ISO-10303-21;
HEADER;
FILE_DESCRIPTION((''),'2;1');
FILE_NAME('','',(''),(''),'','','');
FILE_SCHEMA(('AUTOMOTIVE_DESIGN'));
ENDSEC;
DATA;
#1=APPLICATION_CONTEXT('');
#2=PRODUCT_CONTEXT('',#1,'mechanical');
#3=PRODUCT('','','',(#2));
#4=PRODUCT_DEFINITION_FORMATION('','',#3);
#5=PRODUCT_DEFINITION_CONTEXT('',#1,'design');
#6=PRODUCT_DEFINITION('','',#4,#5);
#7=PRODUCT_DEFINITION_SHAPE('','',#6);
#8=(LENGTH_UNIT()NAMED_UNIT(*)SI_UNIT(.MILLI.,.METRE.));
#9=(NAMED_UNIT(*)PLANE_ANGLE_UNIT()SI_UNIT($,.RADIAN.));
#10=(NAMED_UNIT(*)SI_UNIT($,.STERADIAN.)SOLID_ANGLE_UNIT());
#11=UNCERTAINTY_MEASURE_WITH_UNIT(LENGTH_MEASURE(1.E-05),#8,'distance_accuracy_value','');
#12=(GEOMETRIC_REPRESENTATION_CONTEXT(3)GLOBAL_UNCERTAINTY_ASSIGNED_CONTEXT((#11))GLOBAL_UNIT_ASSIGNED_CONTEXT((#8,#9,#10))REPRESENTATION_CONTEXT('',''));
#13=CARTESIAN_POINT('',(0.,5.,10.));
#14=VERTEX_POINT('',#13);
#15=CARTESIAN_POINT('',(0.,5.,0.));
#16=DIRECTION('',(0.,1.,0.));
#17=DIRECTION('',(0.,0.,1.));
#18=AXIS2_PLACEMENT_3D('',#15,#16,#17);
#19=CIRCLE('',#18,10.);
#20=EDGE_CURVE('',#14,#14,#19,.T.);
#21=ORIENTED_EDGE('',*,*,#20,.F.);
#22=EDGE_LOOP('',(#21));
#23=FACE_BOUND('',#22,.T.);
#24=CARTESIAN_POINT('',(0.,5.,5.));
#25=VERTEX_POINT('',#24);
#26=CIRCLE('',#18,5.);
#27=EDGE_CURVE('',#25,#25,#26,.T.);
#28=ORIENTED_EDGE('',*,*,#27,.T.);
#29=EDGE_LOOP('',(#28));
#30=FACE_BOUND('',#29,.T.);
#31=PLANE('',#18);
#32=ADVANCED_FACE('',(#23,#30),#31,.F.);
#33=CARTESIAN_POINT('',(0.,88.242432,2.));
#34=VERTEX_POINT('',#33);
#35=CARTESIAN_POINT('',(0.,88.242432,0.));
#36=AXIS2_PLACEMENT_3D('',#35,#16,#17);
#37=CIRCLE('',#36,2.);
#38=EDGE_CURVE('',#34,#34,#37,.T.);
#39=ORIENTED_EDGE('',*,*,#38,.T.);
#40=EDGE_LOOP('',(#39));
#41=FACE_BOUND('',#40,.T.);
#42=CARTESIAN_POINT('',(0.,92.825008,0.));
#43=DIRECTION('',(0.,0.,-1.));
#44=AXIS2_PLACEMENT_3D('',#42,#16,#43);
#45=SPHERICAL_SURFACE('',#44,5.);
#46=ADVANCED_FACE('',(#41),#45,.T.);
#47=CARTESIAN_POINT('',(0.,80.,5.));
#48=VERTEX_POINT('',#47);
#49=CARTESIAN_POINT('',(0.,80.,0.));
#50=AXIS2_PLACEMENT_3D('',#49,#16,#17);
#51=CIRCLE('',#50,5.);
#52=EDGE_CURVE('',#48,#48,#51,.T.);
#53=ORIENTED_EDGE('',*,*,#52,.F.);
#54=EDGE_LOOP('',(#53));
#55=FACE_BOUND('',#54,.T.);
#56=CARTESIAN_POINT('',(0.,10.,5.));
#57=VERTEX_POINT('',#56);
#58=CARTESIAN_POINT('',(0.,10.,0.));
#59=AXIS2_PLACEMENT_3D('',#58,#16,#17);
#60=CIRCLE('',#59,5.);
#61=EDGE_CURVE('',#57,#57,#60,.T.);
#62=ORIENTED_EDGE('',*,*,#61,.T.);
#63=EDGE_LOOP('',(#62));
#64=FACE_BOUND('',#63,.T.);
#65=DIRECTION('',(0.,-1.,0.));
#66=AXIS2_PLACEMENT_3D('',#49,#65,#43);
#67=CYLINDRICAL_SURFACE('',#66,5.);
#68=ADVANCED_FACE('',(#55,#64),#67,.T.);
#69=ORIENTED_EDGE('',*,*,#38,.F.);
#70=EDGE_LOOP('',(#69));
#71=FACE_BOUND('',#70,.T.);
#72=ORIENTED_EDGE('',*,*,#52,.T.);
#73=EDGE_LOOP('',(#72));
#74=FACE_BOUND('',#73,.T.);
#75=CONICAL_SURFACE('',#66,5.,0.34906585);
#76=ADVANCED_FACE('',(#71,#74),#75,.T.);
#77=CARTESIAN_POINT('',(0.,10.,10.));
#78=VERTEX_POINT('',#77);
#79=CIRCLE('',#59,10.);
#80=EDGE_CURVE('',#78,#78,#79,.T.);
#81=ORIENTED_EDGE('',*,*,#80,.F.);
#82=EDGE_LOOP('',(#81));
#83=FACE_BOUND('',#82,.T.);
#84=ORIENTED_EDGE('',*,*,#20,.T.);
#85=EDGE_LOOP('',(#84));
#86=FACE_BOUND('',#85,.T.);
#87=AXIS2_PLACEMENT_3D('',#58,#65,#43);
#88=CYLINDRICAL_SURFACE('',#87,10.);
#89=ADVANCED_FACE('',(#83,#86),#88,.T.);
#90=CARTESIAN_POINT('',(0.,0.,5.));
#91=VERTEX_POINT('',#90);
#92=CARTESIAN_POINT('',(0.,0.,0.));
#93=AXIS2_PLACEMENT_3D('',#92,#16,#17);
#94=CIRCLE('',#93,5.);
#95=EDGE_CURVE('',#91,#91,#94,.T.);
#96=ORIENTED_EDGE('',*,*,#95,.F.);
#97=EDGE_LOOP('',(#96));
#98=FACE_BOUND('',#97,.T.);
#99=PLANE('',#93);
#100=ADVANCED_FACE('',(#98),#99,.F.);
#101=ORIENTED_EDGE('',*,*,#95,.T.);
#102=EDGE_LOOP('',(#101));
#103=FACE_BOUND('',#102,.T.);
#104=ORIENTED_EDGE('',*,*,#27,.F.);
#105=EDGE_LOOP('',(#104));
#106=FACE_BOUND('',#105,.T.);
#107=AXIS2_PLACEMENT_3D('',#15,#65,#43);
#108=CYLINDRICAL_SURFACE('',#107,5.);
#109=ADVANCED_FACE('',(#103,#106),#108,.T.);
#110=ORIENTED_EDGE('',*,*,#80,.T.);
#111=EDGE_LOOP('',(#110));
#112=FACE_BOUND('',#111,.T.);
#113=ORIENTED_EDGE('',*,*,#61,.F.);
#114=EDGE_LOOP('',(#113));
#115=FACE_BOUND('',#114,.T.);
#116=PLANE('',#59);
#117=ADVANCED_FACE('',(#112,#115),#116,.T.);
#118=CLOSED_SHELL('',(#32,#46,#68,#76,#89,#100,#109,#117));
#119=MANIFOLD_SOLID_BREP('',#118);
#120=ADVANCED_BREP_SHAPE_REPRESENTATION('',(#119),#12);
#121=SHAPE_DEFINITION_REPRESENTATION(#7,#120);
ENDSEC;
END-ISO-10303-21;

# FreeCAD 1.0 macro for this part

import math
import FreeCAD as App
import Part
import Sketcher
from FreeCAD import Vector
Q = App.Units.Quantity

doc = App.newDocument("Part")
body = doc.addObject("PartDesign::Body", "Body")

# Sketch on XZ plane
sketch1 = body.newObject("Sketcher::SketchObject", "Sketch")
sketch1.AttachmentSupport = (doc.getObject("XZ_Plane"), [""])
sketch1.MapMode = "FlatFace"
sketch1.addGeometry(Part.Circle(Vector(0, 0, 0), Vector(0, 0, 1), 5), False)
sketch1.addConstraint([
    Sketcher.Constraint("Coincident", 0, 3, -1, 1),
    Sketcher.Constraint("Diameter", 0, Q("10 mm")),
])
pad1 = body.newObject("PartDesign::Pad", "Pad")
pad1.Profile = sketch1
pad1.Length = 5
pad1.Reversed = True

# Sketch on XZ plane
sketch2 = body.newObject("Sketcher::SketchObject", "Sketch001")
sketch2.AttachmentSupport = (doc.getObject("XZ_Plane"), [""])
sketch2.MapMode = "FlatFace"
sketch2.AttachmentOffset = App.Placement(Vector(0, 0, -5), App.Rotation())
sketch2.addGeometry(Part.Circle(Vector(0, 0, 0), Vector(0, 0, 1), 10), False)
sketch2.addConstraint([
    Sketcher.Constraint("Coincident", 0, 3, -1, 1),
    Sketcher.Constraint("Diameter", 0, Q("20 mm")),
])
pad2 = body.newObject("PartDesign::Pad", "Pad001")
pad2.Profile = sketch2
pad2.Length = 5
pad2.Reversed = True

# Sketch on XZ plane
sketch3 = body.newObject("Sketcher::SketchObject", "Sketch002")
sketch3.AttachmentSupport = (doc.getObject("XZ_Plane"), [""])
sketch3.MapMode = "FlatFace"
sketch3.AttachmentOffset = App.Placement(Vector(0, 0, -10), App.Rotation())
sketch3.addGeometry(Part.Circle(Vector(0, 0, 0), Vector(0, 0, 1), 5), False)
sketch3.addConstraint([
    Sketcher.Constraint("Coincident", 0, 3, -1, 1),
    Sketcher.Constraint("Diameter", 0, Q("10 mm")),
])
pad3 = body.newObject("PartDesign::Pad", "Pad002")
pad3.Profile = sketch3
pad3.Length = 70
pad3.Reversed = True

# Sketch on YZ plane
sketch4 = body.newObject("Sketcher::SketchObject", "Sketch003")
sketch4.AttachmentSupport = (doc.getObject("YZ_Plane"), [""])
sketch4.MapMode = "FlatFace"
sketch4.addGeometry([
    Part.LineSegment(Vector(80, -5, 0), Vector(88, -2, 0)),
    Part.ArcOfCircle(Part.Circle(Vector(93, 0, 0), Vector(0, 0, 1), 5), math.radians(-156), math.radians(0)),
    Part.LineSegment(Vector(98, 0, 0), Vector(80, 0, 0)),
    Part.LineSegment(Vector(80, 0, 0), Vector(80, -5, 0)),
], False)
sketch4.addConstraint([
    Sketcher.Constraint("Coincident", 0, 2, 1, 1),
    Sketcher.Constraint("Coincident", 1, 2, 2, 1),
    Sketcher.Constraint("Coincident", 2, 2, 3, 1),
    Sketcher.Constraint("Coincident", 3, 2, 0, 1),
    Sketcher.Constraint("Horizontal", 2),
    Sketcher.Constraint("Vertical", 3),
    Sketcher.Constraint("PointOnObject", 1, 3, -1),
    Sketcher.Constraint("PointOnObject", 1, 2, -1),
    Sketcher.Constraint("Radius", 1, Q("5 mm")),
    Sketcher.Constraint("DistanceY", 3, 2, 3, 1, Q("5 mm")),
    Sketcher.Constraint("Angle", 0, Q("20 deg")),
    Sketcher.Constraint("DistanceY", 0, 2, -1, 1, Q("2 mm")),
    Sketcher.Constraint("DistanceX", -1, 1, 2, 2, Q("80 mm")),
])
revolution = body.newObject("PartDesign::Revolution", "Revolution")
revolution.Profile = sketch4
revolution.ReferenceAxis = (sketch4, ["H_Axis"])
revolution.Angle = 360

doc.recompute()
